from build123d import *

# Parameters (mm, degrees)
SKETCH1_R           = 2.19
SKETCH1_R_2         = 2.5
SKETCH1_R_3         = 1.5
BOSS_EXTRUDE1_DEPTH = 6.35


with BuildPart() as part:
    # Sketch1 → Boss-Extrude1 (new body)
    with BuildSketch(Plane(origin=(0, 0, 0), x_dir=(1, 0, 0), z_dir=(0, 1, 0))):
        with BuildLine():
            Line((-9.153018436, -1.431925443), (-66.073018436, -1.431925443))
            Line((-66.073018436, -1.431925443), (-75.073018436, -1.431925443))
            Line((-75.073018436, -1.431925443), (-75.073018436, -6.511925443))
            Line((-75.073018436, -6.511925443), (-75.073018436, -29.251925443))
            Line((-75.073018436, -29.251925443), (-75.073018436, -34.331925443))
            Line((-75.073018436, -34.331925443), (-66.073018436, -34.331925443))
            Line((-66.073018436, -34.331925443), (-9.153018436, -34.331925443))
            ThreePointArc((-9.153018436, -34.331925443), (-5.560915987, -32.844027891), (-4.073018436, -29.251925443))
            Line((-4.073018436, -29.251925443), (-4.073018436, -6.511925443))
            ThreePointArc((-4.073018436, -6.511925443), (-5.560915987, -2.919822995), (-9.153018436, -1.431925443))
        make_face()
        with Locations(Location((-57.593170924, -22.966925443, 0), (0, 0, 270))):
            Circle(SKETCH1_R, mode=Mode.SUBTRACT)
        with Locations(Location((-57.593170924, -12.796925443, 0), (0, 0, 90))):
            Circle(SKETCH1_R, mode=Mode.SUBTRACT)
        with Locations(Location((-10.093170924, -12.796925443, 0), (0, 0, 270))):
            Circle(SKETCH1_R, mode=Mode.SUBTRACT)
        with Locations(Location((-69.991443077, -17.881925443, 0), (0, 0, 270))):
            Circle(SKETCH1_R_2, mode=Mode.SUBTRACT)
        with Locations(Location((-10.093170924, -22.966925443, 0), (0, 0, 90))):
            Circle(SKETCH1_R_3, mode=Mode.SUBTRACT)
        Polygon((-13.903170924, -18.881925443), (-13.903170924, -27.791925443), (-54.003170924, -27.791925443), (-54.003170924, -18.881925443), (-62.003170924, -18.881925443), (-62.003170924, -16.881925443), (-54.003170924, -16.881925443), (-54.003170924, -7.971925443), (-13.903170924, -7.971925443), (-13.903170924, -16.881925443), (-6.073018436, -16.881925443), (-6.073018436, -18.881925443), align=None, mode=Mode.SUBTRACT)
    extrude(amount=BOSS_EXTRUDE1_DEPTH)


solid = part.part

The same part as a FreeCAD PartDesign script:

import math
import FreeCAD as App
import Part
import Sketcher
from FreeCAD import Vector
Q = App.Units.Quantity


def add_polygon(sketch, points):
    """Adds a closed chain of lines whose ends are joined by coincident constraints."""
    first, n = sketch.GeometryCount, len(points)
    for a, b in zip(points, points[1:] + points[:1]):
        sketch.addGeometry(Part.LineSegment(App.Vector(*a, 0), App.Vector(*b, 0)), False)
    for i in range(n):
        sketch.addConstraint(Sketcher.Constraint("Coincident", first + i, 2, first + (i + 1) % n, 1))

doc = App.newDocument("Part")
body = doc.addObject("PartDesign::Body", "Body")

# Sketch on XZ plane
sketch1 = body.newObject("Sketcher::SketchObject", "Sketch")
sketch1.AttachmentSupport = (doc.getObject("XZ_Plane"), [""])
sketch1.MapMode = "FlatFace"
sketch1.addGeometry(Part.LineSegment(Vector(-9.2, 1.4, 0), Vector(-75.1, 1.4, 0)), False)  # 0
sketch1.addGeometry(Part.LineSegment(Vector(-75.1, 1.4, 0), Vector(-75.1, 34.3, 0)), False)  # 1
sketch1.addGeometry(Part.LineSegment(Vector(-75.1, 34.3, 0), Vector(-9.2, 34.3, 0)), False)  # 2
sketch1.addGeometry(Part.ArcOfCircle(Part.Circle(Vector(-9.2, 29.3, 0), Vector(0, 0, 1), 5.1), math.radians(0), math.radians(90)), False)  # 3
sketch1.addGeometry(Part.LineSegment(Vector(-4.1, 29.3, 0), Vector(-4.1, 6.5, 0)), False)  # 4
sketch1.addGeometry(Part.ArcOfCircle(Part.Circle(Vector(-9.2, 6.5, 0), Vector(0, 0, 1), 5.1), math.radians(-90), math.radians(0)), False)  # 5
sketch1.addGeometry(Part.Circle(Vector(-57.6, 23, 0), Vector(0, 0, 1), 2.2), False)  # 6
sketch1.addGeometry(Part.Circle(Vector(-10.1, 23, 0), Vector(0, 0, 1), 1.5), False)  # 7
sketch1.addGeometry(Part.Circle(Vector(-70, 17.9, 0), Vector(0, 0, 1), 2.5), False)  # 8
sketch1.addGeometry(Part.Circle(Vector(-57.6, 12.8, 0), Vector(0, 0, 1), 2.2), False)  # 9
add_polygon(sketch1, [(-6.1, 18.9), (-13.9, 18.9), (-13.9, 27.8), (-54, 27.8), (-54, 18.9), (-62, 18.9), (-62, 16.9), (-54, 16.9), (-54, 8), (-13.9, 8), (-13.9, 16.9), (-6.1, 16.9)])  # lines 10-21
sketch1.addGeometry(Part.Circle(Vector(-10.1, 12.8, 0), Vector(0, 0, 1), 2.2), False)  # 22
sketch1.addConstraint([
    Sketcher.Constraint("Coincident", 0, 2, 1, 1),
    Sketcher.Constraint("Coincident", 1, 2, 2, 1),
    Sketcher.Constraint("Tangent", 2, 2, 3, 2),
    Sketcher.Constraint("Tangent", 3, 1, 4, 1),
    Sketcher.Constraint("Tangent", 4, 2, 5, 2),
    Sketcher.Constraint("Tangent", 5, 1, 0, 1),
    Sketcher.Constraint("Horizontal", 0),
    Sketcher.Constraint("Vertical", 1),
    Sketcher.Constraint("Horizontal", 2),
    Sketcher.Constraint("Vertical", 4),
    Sketcher.Constraint("Horizontal", 10),
    Sketcher.Constraint("Vertical", 11),
    Sketcher.Constraint("Horizontal", 12),
    Sketcher.Constraint("Vertical", 13),
    Sketcher.Constraint("Horizontal", 14),
    Sketcher.Constraint("Vertical", 15),
    Sketcher.Constraint("Horizontal", 16),
    Sketcher.Constraint("Vertical", 17),
    Sketcher.Constraint("Horizontal", 18),
    Sketcher.Constraint("Vertical", 19),
    Sketcher.Constraint("Horizontal", 20),
    Sketcher.Constraint("Vertical", 21),
    Sketcher.Constraint("Equal", 3, 5),
    Sketcher.Constraint("Equal", 6, 9),
    Sketcher.Constraint("Equal", 9, 22),
    Sketcher.Constraint("Horizontal", 6, 3, 7, 3),
    Sketcher.Constraint("Horizontal", 9, 3, 22, 3),
    Sketcher.Constraint("Horizontal", 10, 2, 13, 2),
    Sketcher.Constraint("Horizontal", 16, 2, 19, 2),
    Sketcher.Constraint("Vertical", 6, 3, 9, 3),
    Sketcher.Constraint("Vertical", 7, 3, 22, 3),
    Sketcher.Constraint("Vertical", 13, 2, 16, 2),
    Sketcher.Constraint("Vertical", 11, 2, 18, 2),
    Sketcher.Constraint("Equal", 13, 17),
    Sketcher.Constraint("Diameter", 7, Q("3 mm")),
    Sketcher.Constraint("Diameter", 8, Q("5 mm")),
    Sketcher.Constraint("Diameter", 6, Q("4.38 mm")),
    Sketcher.Constraint("DistanceX", 14, 2, 14, 1, Q("8 mm")),
    Sketcher.Constraint("DistanceY", 15, 2, 15, 1, Q("2 mm")),
    Sketcher.Constraint("Radius", 3, Q("5.08 mm")),
    Sketcher.Constraint("DistanceX", 12, 2, 12, 1, Q("40.1 mm")),
    Sketcher.Constraint("DistanceY", 1, 1, 1, 2, Q("32.9 mm")),
    Sketcher.Constraint("DistanceY", 8, 3, 13, 2, Q("1 mm")),
    Sketcher.Constraint("DistanceX", 20, 2, 4, 2, Q("2 mm")),
    Sketcher.Constraint("DistanceX", 0, 2, 0, 1, Q("65.92 mm")),
    Sketcher.Constraint("DistanceY", 11, 1, 11, 2, Q("8.91 mm")),
    Sketcher.Constraint("DistanceX", 6, 3, 7, 3, Q("47.5 mm")),
    Sketcher.Constraint("DistanceY", 8, 3, 3, 3, Q("11.37 mm")),
    Sketcher.Constraint("DistanceY", 9, 3, 6, 3, Q("10.17 mm")),
    Sketcher.Constraint("DistanceX", 10, 2, 7, 3, Q("3.81 mm")),
    Sketcher.Constraint("DistanceY", 6, 3, 3, 3, Q("6.285 mm")),
    Sketcher.Constraint("DistanceX", 10, 2, 10, 1, Q("7.830152 mm")),
    Sketcher.Constraint("DistanceX", 3, 3, -1, 1, Q("9.153018 mm")),
    Sketcher.Constraint("DistanceY", -1, 1, 3, 3, Q("29.251925 mm")),
    Sketcher.Constraint("DistanceX", 8, 3, -1, 1, Q("69.991443 mm")),
])
pad1 = body.newObject("PartDesign::Pad", "Pad")
pad1.Profile = sketch1
pad1.Length = 6.35
pad1.Reversed = True

doc.recompute()
